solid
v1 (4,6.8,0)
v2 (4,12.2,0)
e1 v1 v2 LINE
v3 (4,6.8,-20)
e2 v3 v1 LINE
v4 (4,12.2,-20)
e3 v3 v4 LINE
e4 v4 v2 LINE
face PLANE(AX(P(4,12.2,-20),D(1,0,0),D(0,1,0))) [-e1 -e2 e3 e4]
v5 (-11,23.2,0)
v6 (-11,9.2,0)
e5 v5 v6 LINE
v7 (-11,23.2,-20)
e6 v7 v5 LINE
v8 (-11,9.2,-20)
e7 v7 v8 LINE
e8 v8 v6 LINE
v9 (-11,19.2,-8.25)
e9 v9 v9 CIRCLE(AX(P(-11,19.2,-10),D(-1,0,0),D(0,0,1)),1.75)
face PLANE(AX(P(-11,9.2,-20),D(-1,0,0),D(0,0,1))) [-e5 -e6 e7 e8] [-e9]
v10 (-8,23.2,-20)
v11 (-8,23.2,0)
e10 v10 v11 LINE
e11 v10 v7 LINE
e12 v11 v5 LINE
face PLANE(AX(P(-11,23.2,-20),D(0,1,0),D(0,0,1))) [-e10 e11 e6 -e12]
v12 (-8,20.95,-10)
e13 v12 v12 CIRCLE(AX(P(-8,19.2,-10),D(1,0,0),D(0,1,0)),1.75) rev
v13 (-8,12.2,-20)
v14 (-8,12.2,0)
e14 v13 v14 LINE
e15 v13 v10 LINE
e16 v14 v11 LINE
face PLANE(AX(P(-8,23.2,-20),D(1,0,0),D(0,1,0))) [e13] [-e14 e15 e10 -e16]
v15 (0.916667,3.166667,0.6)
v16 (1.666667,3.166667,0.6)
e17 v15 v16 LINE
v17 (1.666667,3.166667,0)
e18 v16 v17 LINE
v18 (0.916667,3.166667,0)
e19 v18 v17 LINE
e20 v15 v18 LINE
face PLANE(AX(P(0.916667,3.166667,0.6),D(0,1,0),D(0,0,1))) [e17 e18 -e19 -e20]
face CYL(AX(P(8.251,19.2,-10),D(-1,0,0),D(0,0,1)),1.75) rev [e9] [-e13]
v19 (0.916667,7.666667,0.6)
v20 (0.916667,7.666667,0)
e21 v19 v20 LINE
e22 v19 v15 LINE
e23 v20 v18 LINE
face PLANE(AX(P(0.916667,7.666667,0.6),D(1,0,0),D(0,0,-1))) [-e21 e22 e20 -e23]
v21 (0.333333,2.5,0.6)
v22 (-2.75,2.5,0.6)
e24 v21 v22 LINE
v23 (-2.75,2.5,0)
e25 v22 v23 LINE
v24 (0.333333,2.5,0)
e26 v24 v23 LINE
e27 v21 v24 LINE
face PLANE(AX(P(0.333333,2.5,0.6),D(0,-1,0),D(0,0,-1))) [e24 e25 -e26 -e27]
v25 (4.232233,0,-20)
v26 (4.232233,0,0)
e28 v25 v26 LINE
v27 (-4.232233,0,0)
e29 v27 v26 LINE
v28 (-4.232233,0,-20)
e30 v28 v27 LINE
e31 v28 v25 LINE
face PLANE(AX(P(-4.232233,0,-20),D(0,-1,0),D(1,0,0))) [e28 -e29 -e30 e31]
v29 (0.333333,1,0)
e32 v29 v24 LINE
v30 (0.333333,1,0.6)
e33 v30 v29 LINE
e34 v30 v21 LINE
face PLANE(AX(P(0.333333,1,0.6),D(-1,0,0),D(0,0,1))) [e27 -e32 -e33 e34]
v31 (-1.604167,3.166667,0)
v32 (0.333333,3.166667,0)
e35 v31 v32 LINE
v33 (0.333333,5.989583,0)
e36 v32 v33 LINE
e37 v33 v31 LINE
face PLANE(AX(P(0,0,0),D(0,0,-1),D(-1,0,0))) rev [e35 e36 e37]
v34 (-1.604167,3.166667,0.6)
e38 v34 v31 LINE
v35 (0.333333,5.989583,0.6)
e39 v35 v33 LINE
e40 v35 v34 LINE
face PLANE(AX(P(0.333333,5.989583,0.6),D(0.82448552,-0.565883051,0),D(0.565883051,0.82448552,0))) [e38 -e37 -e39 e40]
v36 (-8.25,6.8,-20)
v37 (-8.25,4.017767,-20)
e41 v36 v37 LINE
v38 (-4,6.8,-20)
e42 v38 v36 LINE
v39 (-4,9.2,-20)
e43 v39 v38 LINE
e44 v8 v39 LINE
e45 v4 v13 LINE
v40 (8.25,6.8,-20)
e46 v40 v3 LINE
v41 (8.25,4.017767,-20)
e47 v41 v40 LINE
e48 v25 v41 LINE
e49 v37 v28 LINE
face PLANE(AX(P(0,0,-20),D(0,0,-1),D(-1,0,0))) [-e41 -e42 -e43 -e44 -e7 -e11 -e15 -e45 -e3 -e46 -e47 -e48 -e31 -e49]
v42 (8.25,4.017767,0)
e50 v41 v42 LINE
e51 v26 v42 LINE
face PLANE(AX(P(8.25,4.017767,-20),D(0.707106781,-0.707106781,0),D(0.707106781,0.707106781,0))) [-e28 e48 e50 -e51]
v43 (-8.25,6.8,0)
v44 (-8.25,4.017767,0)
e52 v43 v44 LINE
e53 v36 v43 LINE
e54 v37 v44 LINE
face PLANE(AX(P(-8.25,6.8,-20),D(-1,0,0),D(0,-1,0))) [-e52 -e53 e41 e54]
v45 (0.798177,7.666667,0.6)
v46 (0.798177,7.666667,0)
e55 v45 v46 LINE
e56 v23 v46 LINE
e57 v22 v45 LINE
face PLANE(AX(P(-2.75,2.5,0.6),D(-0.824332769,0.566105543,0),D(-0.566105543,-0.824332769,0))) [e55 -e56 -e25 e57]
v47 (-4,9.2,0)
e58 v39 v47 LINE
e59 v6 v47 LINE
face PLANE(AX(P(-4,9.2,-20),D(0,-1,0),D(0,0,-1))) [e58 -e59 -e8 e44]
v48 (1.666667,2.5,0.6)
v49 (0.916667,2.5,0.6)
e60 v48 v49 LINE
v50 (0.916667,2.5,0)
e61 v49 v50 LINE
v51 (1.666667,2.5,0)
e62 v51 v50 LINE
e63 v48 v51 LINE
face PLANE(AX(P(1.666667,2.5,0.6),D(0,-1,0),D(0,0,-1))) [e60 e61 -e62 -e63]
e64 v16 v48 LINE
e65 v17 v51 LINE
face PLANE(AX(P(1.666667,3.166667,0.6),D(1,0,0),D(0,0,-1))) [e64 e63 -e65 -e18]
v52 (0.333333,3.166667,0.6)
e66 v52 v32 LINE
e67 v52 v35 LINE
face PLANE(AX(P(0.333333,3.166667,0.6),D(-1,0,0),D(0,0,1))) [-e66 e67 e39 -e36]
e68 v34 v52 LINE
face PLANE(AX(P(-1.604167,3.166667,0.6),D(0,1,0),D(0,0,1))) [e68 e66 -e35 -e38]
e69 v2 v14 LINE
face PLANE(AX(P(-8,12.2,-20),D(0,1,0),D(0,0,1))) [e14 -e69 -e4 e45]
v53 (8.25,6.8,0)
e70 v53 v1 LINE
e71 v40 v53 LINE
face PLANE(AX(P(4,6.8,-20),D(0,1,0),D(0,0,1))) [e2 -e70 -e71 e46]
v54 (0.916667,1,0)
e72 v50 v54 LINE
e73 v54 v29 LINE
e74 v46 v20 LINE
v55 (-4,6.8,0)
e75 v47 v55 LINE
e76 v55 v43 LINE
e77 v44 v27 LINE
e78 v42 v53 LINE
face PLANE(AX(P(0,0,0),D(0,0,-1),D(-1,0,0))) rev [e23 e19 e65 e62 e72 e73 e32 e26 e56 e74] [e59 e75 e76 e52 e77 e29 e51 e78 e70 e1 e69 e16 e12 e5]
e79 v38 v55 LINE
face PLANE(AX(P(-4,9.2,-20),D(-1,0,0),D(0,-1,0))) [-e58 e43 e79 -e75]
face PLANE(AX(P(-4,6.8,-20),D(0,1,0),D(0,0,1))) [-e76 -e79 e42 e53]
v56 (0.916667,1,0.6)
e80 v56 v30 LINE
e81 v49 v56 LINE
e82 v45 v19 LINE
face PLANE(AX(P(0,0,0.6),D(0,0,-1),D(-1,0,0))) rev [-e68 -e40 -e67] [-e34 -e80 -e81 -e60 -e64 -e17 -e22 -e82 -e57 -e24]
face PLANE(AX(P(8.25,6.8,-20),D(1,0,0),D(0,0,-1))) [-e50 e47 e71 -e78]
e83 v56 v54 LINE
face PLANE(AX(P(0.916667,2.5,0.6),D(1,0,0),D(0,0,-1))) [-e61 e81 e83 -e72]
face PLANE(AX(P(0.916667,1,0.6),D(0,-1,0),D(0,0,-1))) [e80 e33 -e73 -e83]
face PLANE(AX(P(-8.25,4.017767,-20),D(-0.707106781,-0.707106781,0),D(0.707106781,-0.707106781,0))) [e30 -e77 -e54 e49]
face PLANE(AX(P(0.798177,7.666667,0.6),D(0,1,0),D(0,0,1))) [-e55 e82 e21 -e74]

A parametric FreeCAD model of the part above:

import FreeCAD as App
import Part
import Sketcher
Q = App.Units.Quantity


def add_polygon(sketch, points):
    """Adds a closed chain of lines whose ends are joined by coincident constraints."""
    first, n = sketch.GeometryCount, len(points)
    for a, b in zip(points, points[1:] + points[:1]):
        sketch.addGeometry(Part.LineSegment(App.Vector(*a, 0), App.Vector(*b, 0)), False)
    for i in range(n):
        sketch.addConstraint(Sketcher.Constraint("Coincident", first + i, 2, first + (i + 1) % n, 1))

doc = App.newDocument("Part")
body = doc.addObject("PartDesign::Body", "Body")

sketch1 = body.newObject("Sketcher::SketchObject", "Sketch")
sketch1.AttachmentSupport = (doc.getObject("XY_Plane"), [""])
sketch1.MapMode = "FlatFace"
add_polygon(sketch1, [(-11, 9.2), (-4, 9.2), (-4, 6.8), (-8.2, 6.8), (-8.2, 4), (-4.2, 0), (4.2, 0), (8.2, 4), (8.2, 6.8), (4, 6.8), (4, 12.2), (-8, 12.2), (-8, 23.2), (-11, 23.2)])
sketch1.addConstraint([
    Sketcher.Constraint("Horizontal", 0),
    Sketcher.Constraint("Vertical", 1),
    Sketcher.Constraint("Horizontal", 2),
    Sketcher.Constraint("Vertical", 3),
    Sketcher.Constraint("Horizontal", 5),
    Sketcher.Constraint("Vertical", 7),
    Sketcher.Constraint("Horizontal", 8),
    Sketcher.Constraint("Vertical", 9),
    Sketcher.Constraint("Horizontal", 10),
    Sketcher.Constraint("Vertical", 11),
    Sketcher.Constraint("Horizontal", 12),
    Sketcher.Constraint("Vertical", 13),
    Sketcher.Constraint("Symmetric", 4, 2, 5, 2, -1, 1),
    Sketcher.Constraint("Symmetric", 3, 2, 6, 2, -2),
    Sketcher.Constraint("Symmetric", 1, 2, 8, 2, -2),
    Sketcher.Constraint("Perpendicular", 4, 6),
    Sketcher.Constraint("DistanceX", 0, 1, 0, 2, Q("7 mm")),
    Sketcher.Constraint("DistanceX", 10, 2, 10, 1, Q("12 mm")),
    Sketcher.Constraint("DistanceX", 12, 2, 12, 1, Q("3 mm")),
    Sketcher.Constraint("DistanceY", 11, 1, 11, 2, Q("11 mm")),
    Sketcher.Constraint("DistanceY", 13, 2, 13, 1, Q("14 mm")),
    Sketcher.Constraint("DistanceY", 1, 2, 1, 1, Q("2.4 mm")),
    Sketcher.Constraint("DistanceX", 2, 2, 2, 1, Q("4.25 mm")),
    Sketcher.Constraint("DistanceY", -1, 1, 0, 2, Q("9.2 mm")),
    Sketcher.Constraint("Distance", 4, Q("5.681981 mm")),
])
pad1 = body.newObject("PartDesign::Pad", "Pad")
pad1.Profile = sketch1
pad1.Length = 20
pad1.Reversed = True

sketch2 = body.newObject("Sketcher::SketchObject", "Sketch001")
sketch2.AttachmentSupport = (doc.getObject("YZ_Plane"), [""])
sketch2.MapMode = "FlatFace"
sketch2.AttachmentOffset = App.Placement(App.Vector(0, 0, -11), App.Rotation())
sketch2.addGeometry(Part.Circle(App.Vector(19.2, -10, 0), App.Vector(0, 0, 1), 1.8), False)
sketch2.addConstraint([
    Sketcher.Constraint("Diameter", 0, Q("3.5 mm")),
    Sketcher.Constraint("DistanceY", 0, 3, -1, 1, Q("10 mm")),
    Sketcher.Constraint("DistanceX", -1, 1, 0, 3, Q("19.2 mm")),
])
pocket1 = body.newObject("PartDesign::Pocket", "Pocket")
pocket1.Profile = sketch2
pocket1.Type = "UpToFirst"
pocket1.Reversed = True

sketch3 = body.newObject("Sketcher::SketchObject", "Sketch002")
sketch3.AttachmentSupport = (doc.getObject("XY_Plane"), [""])
sketch3.MapMode = "FlatFace"
add_polygon(sketch3, [(0.92, 7.67), (0.8, 7.67), (-2.75, 2.5), (0.33, 2.5), (0.33, 1), (0.92, 1), (0.92, 2.5), (1.67, 2.5), (1.67, 3.17), (0.92, 3.17)])
add_polygon(sketch3, [(0.33, 3.17), (-1.6, 3.17), (0.33, 5.99)])
sketch3.addConstraint([
    Sketcher.Constraint("Horizontal", 0),
    Sketcher.Constraint("Horizontal", 2),
    Sketcher.Constraint("Vertical", 3),
    Sketcher.Constraint("Horizontal", 4),
    Sketcher.Constraint("Vertical", 5),
    Sketcher.Constraint("Horizontal", 6),
    Sketcher.Constraint("Vertical", 7),
    Sketcher.Constraint("Horizontal", 8),
    Sketcher.Constraint("Vertical", 9),
    Sketcher.Constraint("Horizontal", 10),
    Sketcher.Constraint("Vertical", 12),
    Sketcher.Constraint("Horizontal", 2, 2, 5, 2),
    Sketcher.Constraint("Horizontal", 8, 2, 10, 2),
    Sketcher.Constraint("Vertical", 5, 2, 8, 2),
    Sketcher.Constraint("Vertical", 3, 2, 11, 2),
    Sketcher.Constraint("DistanceY", 3, 2, 3, 1, Q("1.5 mm")),
    Sketcher.Constraint("DistanceY", 9, 1, 9, 2, Q("4.5 mm")),
    Sketcher.Constraint("DistanceY", -1, 1, 3, 2, Q("1 mm")),
    Sketcher.Constraint("DistanceX", 6, 1, 6, 2, Q("0.75 mm")),
    Sketcher.Constraint("DistanceX", 1, 2, -1, 1, Q("2.75 mm")),
    Sketcher.Constraint("DistanceX", 10, 2, 10, 1, Q("1.9375 mm")),
    Sketcher.Constraint("DistanceX", 0, 2, 0, 1, Q("0.11849 mm")),
    Sketcher.Constraint("DistanceX", 2, 1, 2, 2, Q("3.083333 mm")),
    Sketcher.Constraint("DistanceX", 4, 1, 4, 2, Q("0.583333 mm")),
    Sketcher.Constraint("DistanceY", 7, 1, 7, 2, Q("0.666667 mm")),
    Sketcher.Constraint("DistanceY", 12, 2, 12, 1, Q("2.822917 mm")),
])
pad2 = body.newObject("PartDesign::Pad", "Pad001")
pad2.Profile = sketch3
pad2.Length = 0.6

doc.recompute()
